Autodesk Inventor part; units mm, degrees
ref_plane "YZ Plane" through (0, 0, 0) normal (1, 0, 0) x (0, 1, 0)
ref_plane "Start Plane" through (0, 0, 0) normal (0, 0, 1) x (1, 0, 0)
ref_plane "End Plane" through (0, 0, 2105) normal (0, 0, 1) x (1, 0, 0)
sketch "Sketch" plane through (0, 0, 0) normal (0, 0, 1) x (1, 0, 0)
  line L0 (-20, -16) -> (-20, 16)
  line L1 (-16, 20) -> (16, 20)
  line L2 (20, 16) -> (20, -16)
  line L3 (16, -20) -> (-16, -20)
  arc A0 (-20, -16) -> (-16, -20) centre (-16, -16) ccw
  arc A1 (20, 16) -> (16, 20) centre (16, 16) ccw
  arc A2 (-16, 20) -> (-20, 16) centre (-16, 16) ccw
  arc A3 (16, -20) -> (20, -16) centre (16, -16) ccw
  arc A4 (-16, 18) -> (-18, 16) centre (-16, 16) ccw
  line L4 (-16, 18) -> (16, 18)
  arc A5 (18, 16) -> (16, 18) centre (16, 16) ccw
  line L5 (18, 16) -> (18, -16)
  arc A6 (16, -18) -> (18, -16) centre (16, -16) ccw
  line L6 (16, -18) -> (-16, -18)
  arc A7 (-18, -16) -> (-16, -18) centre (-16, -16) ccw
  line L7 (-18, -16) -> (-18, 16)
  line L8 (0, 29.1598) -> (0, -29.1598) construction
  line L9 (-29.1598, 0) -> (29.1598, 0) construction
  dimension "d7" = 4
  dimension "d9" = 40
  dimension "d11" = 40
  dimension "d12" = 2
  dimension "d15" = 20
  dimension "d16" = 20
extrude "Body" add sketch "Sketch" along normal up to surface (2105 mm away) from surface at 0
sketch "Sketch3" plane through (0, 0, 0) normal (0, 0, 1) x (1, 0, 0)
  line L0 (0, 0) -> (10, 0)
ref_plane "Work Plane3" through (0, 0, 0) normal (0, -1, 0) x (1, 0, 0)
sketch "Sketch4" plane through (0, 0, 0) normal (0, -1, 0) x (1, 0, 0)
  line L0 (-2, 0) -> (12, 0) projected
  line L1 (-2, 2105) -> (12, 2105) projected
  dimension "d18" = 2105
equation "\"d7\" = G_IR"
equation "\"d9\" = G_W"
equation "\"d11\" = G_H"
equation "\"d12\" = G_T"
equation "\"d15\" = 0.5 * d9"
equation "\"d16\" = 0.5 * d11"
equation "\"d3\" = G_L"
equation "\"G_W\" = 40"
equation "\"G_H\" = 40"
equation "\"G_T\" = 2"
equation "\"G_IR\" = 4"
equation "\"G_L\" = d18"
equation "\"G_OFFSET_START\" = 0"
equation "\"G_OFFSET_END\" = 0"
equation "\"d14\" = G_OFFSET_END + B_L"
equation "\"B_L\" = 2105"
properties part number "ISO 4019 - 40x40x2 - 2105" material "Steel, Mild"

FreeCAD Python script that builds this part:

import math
import FreeCAD as App
import Part
import Sketcher
from FreeCAD import Vector
Q = App.Units.Quantity

doc = App.newDocument("Part")
body = doc.addObject("PartDesign::Body", "Body")

sketch1 = body.newObject("Sketcher::SketchObject", "Sketch")
sketch1.AttachmentSupport = (doc.getObject("XY_Plane"), [""])
sketch1.MapMode = "FlatFace"
sketch1.addGeometry([
    Part.LineSegment(Vector(-20, 16, 0), Vector(-20, -16, 0)),
    Part.ArcOfCircle(Part.Circle(Vector(-16, -16, 0), Vector(0, 0, 1), 4), math.radians(180), math.radians(270)),
    Part.LineSegment(Vector(-16, -20, 0), Vector(16, -20, 0)),
    Part.ArcOfCircle(Part.Circle(Vector(16, -16, 0), Vector(0, 0, 1), 4), math.radians(-90), math.radians(0)),
    Part.LineSegment(Vector(20, -16, 0), Vector(20, 16, 0)),
    Part.ArcOfCircle(Part.Circle(Vector(16, 16, 0), Vector(0, 0, 1), 4), math.radians(0), math.radians(90)),
    Part.LineSegment(Vector(16, 20, 0), Vector(-16, 20, 0)),
    Part.ArcOfCircle(Part.Circle(Vector(-16, 16, 0), Vector(0, 0, 1), 4), math.radians(90), math.radians(180)),
    Part.ArcOfCircle(Part.Circle(Vector(-16, 16, 0), Vector(0, 0, 1), 2), math.radians(90), math.radians(180)),
    Part.LineSegment(Vector(-16, 18, 0), Vector(16, 18, 0)),
    Part.ArcOfCircle(Part.Circle(Vector(16, 16, 0), Vector(0, 0, 1), 2), math.radians(0), math.radians(90)),
    Part.LineSegment(Vector(18, 16, 0), Vector(18, -16, 0)),
    Part.ArcOfCircle(Part.Circle(Vector(16, -16, 0), Vector(0, 0, 1), 2), math.radians(-90), math.radians(0)),
    Part.LineSegment(Vector(16, -18, 0), Vector(-16, -18, 0)),
    Part.ArcOfCircle(Part.Circle(Vector(-16, -16, 0), Vector(0, 0, 1), 2), math.radians(180), math.radians(270)),
    Part.LineSegment(Vector(-18, -16, 0), Vector(-18, 16, 0)),
], False)
sketch1.addConstraint([
    Sketcher.Constraint("Tangent", 0, 2, 1, 1),
    Sketcher.Constraint("Tangent", 1, 2, 2, 1),
    Sketcher.Constraint("Tangent", 2, 2, 3, 1),
    Sketcher.Constraint("Tangent", 3, 2, 4, 1),
    Sketcher.Constraint("Tangent", 4, 2, 5, 1),
    Sketcher.Constraint("Tangent", 5, 2, 6, 1),
    Sketcher.Constraint("Tangent", 6, 2, 7, 1),
    Sketcher.Constraint("Tangent", 7, 2, 0, 1),
    Sketcher.Constraint("Tangent", 8, 1, 9, 1),
    Sketcher.Constraint("Tangent", 9, 2, 10, 2),
    Sketcher.Constraint("Tangent", 10, 1, 11, 1),
    Sketcher.Constraint("Tangent", 11, 2, 12, 2),
    Sketcher.Constraint("Tangent", 12, 1, 13, 1),
    Sketcher.Constraint("Tangent", 13, 2, 14, 2),
    Sketcher.Constraint("Tangent", 14, 1, 15, 1),
    Sketcher.Constraint("Tangent", 15, 2, 8, 2),
    Sketcher.Constraint("Vertical", 0),
    Sketcher.Constraint("Horizontal", 2),
    Sketcher.Constraint("Vertical", 4),
    Sketcher.Constraint("Horizontal", 6),
    Sketcher.Constraint("Horizontal", 9),
    Sketcher.Constraint("Vertical", 11),
    Sketcher.Constraint("Horizontal", 13),
    Sketcher.Constraint("Vertical", 15),
    Sketcher.Constraint("Coincident", 8, 3, 7, 3),
    Sketcher.Constraint("Coincident", 10, 3, 5, 3),
    Sketcher.Constraint("Coincident", 12, 3, 3, 3),
    Sketcher.Constraint("Equal", 1, 3),
    Sketcher.Constraint("Equal", 3, 5),
    Sketcher.Constraint("Equal", 5, 7),
    Sketcher.Constraint("Equal", 12, 14),
    Sketcher.Constraint("Symmetric", 1, 3, 5, 3, -1, 1),
    Sketcher.Constraint("Equal", 13, 0),
    Sketcher.Constraint("Radius", 1, Q("4 mm")),
    Sketcher.Constraint("Radius", 8, Q("2 mm")),
    Sketcher.Constraint("DistanceX", 0, 2, -1, 1, Q("20 mm")),
])
pad1 = body.newObject("PartDesign::Pad", "Pad")
pad1.Profile = sketch1
pad1.Length = 2105

doc.recompute()
